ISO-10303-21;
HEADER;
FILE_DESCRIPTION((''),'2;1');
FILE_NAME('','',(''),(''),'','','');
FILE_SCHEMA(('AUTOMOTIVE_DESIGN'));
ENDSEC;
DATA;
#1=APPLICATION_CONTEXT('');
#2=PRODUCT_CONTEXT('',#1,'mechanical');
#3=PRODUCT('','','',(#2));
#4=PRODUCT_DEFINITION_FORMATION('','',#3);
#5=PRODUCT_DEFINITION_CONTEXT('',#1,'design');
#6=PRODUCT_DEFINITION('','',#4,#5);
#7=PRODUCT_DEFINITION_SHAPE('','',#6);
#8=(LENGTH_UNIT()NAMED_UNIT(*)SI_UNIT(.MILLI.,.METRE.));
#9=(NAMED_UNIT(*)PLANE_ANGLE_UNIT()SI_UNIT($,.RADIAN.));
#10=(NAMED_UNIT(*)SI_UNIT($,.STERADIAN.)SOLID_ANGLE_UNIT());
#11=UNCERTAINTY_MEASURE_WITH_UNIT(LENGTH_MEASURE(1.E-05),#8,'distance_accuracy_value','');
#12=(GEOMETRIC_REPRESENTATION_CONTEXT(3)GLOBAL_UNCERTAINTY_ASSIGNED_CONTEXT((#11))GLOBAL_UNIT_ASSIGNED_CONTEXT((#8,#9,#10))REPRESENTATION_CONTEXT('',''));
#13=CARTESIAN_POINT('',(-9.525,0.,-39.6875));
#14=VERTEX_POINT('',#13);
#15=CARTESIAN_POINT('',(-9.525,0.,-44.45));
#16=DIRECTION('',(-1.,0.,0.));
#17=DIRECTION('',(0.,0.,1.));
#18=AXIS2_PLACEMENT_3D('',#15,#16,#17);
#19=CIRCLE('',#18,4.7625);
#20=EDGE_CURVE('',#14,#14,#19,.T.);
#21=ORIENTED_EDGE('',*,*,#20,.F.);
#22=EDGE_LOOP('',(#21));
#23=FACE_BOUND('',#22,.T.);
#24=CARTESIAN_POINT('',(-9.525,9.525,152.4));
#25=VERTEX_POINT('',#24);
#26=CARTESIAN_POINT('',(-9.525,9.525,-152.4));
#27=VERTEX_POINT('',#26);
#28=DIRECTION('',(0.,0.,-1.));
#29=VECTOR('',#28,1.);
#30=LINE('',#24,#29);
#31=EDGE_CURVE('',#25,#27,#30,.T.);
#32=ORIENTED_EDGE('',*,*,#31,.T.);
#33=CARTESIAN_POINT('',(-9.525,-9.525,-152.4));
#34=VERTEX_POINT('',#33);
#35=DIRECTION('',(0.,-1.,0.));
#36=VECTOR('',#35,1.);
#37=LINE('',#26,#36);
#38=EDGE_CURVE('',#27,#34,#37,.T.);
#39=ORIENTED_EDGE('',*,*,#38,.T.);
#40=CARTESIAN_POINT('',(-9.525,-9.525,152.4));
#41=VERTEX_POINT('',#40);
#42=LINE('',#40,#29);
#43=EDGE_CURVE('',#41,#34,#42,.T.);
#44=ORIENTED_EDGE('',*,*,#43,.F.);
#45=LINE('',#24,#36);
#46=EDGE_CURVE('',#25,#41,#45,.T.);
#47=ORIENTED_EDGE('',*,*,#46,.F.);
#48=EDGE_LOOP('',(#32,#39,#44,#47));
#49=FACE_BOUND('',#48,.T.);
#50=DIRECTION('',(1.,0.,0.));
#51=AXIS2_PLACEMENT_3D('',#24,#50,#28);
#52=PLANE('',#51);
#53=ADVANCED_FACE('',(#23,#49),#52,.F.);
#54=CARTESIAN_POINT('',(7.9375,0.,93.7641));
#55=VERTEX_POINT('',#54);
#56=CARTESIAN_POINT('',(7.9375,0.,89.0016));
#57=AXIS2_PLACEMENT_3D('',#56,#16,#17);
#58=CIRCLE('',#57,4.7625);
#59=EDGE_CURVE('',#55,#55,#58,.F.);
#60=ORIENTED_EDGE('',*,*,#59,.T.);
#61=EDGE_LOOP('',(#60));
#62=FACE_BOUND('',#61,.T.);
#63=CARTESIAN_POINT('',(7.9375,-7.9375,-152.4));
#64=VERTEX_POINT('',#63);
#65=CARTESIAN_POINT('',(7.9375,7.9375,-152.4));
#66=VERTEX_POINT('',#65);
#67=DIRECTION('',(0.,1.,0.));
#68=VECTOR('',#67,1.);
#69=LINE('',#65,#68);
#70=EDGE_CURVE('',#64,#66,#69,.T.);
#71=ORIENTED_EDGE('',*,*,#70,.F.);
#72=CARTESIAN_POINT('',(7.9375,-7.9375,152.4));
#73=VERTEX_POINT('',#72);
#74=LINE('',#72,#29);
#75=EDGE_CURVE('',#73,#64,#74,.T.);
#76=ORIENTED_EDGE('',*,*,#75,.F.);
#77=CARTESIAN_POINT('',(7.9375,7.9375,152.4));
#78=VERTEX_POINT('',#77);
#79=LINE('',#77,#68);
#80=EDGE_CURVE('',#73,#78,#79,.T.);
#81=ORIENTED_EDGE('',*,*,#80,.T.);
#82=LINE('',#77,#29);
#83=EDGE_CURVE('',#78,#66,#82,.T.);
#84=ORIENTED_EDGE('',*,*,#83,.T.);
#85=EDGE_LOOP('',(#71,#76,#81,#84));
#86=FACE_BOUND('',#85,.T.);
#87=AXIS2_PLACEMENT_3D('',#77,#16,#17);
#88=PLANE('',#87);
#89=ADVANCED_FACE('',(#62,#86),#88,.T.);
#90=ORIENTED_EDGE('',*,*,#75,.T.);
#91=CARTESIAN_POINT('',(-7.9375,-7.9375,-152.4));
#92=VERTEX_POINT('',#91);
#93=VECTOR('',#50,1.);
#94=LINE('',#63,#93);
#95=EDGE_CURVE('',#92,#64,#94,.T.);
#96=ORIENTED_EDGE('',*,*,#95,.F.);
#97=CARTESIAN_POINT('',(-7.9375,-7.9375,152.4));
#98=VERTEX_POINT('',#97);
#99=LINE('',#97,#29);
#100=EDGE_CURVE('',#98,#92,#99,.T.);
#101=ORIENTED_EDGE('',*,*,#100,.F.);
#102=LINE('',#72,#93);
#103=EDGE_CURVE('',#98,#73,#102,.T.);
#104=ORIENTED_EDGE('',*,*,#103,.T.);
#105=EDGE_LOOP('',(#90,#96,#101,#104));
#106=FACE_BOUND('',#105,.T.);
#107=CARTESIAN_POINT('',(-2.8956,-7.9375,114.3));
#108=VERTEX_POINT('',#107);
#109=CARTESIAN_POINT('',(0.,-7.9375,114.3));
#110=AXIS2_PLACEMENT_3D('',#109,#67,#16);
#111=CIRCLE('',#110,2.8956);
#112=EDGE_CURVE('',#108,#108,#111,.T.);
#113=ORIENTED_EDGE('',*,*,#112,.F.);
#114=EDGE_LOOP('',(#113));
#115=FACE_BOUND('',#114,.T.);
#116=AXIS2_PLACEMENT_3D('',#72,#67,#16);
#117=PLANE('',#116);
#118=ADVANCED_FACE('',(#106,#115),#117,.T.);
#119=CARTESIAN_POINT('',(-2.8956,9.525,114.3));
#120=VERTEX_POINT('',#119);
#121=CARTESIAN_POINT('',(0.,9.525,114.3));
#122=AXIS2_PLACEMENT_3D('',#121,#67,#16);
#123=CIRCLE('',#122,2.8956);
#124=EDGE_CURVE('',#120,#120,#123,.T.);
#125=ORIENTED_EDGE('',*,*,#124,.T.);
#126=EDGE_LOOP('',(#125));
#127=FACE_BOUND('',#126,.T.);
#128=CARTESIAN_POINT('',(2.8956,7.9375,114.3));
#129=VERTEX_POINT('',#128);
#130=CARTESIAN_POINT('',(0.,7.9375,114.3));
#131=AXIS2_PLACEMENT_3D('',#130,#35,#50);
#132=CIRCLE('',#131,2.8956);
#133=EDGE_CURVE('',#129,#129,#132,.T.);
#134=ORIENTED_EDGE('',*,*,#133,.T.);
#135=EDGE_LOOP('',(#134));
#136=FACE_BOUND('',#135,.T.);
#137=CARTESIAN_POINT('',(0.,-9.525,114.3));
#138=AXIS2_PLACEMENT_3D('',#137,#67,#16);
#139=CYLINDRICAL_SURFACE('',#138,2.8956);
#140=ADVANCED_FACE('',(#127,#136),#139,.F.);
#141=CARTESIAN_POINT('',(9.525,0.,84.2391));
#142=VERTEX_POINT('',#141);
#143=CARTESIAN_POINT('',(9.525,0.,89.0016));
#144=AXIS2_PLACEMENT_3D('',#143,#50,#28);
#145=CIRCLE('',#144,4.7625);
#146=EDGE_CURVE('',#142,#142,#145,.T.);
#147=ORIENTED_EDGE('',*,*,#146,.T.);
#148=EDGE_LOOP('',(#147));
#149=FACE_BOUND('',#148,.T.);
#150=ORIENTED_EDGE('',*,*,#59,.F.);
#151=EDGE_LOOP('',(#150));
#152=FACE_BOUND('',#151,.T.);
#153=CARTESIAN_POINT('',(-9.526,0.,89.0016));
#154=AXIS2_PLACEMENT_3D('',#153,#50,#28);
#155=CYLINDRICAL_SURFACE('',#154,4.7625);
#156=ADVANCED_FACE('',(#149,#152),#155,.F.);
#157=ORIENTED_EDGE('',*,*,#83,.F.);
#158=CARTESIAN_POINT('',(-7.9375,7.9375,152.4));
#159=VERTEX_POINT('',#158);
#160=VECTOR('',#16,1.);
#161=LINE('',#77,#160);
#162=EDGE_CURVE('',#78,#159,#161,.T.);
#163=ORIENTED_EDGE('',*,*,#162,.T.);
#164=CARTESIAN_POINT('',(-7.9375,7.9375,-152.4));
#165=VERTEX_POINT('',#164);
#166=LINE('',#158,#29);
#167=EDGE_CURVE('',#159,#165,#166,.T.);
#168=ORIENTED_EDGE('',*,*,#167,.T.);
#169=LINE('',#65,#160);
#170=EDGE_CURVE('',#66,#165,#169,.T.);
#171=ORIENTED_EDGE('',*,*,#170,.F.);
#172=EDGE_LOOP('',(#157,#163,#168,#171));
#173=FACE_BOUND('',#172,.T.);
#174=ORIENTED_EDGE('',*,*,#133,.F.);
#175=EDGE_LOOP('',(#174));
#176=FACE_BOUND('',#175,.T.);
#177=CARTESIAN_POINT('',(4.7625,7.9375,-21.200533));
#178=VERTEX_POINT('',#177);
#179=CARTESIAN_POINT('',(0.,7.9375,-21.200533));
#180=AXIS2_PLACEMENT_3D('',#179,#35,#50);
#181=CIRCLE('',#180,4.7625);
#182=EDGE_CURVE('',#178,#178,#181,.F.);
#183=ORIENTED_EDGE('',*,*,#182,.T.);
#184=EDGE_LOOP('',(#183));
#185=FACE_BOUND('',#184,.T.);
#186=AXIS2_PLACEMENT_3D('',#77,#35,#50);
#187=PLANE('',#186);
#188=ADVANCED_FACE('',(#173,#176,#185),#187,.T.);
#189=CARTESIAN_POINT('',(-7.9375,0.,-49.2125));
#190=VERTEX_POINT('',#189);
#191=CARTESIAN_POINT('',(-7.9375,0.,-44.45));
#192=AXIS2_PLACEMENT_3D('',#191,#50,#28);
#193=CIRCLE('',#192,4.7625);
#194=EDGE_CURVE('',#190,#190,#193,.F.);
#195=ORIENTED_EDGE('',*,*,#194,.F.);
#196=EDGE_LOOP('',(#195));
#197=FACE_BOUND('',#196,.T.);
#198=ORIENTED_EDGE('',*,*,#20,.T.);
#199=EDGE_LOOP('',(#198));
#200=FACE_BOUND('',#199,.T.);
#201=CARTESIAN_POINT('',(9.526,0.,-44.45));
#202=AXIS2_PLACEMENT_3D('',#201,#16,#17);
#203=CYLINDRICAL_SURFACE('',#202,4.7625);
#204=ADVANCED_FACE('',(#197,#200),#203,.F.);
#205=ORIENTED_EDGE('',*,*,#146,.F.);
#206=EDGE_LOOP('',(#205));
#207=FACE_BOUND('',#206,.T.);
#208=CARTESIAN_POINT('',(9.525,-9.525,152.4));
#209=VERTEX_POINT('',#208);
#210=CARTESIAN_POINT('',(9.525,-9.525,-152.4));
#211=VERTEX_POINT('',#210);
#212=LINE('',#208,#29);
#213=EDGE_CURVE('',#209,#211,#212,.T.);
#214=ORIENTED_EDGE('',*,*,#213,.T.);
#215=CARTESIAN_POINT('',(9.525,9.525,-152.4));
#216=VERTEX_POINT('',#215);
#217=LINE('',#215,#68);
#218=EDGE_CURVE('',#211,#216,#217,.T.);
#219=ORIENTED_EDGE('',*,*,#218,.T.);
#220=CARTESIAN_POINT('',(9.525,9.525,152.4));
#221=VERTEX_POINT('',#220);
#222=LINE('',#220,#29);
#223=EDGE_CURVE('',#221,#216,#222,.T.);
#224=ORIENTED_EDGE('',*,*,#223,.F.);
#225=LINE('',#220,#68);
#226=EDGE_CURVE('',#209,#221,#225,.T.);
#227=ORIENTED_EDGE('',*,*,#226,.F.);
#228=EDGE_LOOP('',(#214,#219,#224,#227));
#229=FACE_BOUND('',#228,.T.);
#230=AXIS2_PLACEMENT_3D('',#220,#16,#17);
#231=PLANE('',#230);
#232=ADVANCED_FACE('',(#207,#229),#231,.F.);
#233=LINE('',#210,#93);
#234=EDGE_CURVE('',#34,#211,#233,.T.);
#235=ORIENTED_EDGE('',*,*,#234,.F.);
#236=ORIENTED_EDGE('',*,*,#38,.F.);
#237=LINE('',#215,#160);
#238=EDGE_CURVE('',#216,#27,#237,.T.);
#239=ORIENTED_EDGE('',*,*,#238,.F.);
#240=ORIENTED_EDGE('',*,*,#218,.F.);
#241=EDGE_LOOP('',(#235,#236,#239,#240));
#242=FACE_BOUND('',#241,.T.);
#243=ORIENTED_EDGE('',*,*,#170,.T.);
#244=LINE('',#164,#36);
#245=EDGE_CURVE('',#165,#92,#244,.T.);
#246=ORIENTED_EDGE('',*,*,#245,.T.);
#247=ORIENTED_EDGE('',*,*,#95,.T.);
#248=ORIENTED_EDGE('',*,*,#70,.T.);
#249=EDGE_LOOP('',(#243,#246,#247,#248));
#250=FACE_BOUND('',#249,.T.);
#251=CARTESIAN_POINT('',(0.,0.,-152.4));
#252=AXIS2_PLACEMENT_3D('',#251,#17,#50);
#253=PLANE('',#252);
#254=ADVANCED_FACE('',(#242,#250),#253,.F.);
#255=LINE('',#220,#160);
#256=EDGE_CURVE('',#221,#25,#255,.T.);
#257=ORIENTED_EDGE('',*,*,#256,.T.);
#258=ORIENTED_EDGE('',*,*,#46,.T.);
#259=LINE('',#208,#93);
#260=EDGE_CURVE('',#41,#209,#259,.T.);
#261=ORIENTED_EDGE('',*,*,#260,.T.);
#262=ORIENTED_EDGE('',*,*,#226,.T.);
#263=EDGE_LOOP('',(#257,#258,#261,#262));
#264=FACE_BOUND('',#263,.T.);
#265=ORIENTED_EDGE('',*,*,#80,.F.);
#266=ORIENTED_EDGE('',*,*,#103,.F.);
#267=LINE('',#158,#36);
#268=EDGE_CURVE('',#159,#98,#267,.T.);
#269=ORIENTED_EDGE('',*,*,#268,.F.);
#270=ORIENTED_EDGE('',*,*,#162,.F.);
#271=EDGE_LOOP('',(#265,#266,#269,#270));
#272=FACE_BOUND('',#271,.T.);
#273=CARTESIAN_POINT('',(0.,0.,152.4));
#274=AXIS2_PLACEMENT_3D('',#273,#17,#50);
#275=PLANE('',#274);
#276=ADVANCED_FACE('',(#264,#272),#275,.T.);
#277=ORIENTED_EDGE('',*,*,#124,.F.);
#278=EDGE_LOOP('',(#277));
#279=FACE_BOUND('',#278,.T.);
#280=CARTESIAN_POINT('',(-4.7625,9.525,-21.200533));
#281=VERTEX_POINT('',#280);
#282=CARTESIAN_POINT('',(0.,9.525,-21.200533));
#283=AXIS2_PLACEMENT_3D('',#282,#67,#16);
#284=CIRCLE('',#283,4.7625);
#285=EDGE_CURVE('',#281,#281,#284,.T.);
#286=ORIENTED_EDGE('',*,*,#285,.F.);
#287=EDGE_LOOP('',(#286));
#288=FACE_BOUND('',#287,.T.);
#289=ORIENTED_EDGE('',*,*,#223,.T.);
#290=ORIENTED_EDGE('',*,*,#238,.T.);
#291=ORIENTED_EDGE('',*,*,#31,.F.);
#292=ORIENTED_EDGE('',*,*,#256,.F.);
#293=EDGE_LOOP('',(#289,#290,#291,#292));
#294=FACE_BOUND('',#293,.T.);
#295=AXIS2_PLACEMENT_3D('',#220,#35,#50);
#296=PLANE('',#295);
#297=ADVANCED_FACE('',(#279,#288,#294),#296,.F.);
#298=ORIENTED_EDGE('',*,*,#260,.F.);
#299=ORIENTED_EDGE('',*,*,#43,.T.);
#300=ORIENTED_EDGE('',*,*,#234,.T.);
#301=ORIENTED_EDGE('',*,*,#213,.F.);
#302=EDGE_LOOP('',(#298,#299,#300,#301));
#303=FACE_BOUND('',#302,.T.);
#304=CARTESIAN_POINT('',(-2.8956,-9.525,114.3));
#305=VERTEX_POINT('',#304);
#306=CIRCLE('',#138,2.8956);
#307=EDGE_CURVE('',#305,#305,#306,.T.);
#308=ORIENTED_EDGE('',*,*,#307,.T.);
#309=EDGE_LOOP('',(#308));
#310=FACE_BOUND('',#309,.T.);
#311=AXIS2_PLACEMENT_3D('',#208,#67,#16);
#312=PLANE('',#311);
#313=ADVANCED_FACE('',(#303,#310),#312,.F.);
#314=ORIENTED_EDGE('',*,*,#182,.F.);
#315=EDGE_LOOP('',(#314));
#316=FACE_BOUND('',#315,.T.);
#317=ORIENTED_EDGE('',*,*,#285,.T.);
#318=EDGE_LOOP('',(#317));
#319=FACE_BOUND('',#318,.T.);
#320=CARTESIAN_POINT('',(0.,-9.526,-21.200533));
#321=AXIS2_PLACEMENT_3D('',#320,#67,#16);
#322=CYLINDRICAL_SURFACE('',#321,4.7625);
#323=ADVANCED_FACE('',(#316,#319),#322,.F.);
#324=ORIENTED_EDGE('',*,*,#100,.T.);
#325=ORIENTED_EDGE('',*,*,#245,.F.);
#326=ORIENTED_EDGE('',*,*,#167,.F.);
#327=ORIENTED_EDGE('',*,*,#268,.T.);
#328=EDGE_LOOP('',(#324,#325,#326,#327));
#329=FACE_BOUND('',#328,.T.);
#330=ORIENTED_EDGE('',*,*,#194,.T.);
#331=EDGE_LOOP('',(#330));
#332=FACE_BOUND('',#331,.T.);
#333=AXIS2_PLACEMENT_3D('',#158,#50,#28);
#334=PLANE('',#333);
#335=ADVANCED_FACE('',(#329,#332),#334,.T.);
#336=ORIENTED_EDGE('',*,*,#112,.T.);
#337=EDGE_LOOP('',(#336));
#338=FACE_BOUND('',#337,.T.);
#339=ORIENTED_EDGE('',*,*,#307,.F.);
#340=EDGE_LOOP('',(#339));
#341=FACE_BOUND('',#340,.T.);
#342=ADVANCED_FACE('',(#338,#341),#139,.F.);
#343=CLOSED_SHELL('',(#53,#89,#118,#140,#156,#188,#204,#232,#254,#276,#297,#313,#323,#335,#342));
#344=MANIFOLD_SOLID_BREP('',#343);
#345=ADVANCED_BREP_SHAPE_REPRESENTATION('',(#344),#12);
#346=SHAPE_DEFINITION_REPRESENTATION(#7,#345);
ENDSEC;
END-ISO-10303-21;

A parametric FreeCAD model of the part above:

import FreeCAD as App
import Part
import Sketcher
from FreeCAD import Vector
Q = App.Units.Quantity


def add_polygon(sketch, points):
    """Adds a closed chain of lines whose ends are joined by coincident constraints."""
    first, n = sketch.GeometryCount, len(points)
    for a, b in zip(points, points[1:] + points[:1]):
        sketch.addGeometry(Part.LineSegment(App.Vector(*a, 0), App.Vector(*b, 0)), False)
    for i in range(n):
        sketch.addConstraint(Sketcher.Constraint("Coincident", first + i, 2, first + (i + 1) % n, 1))

doc = App.newDocument("Part")
body = doc.addObject("PartDesign::Body", "Body")

sketch1 = body.newObject("Sketcher::SketchObject", "Sketch")
sketch1.AttachmentSupport = (doc.getObject("XY_Plane"), [""])
sketch1.MapMode = "FlatFace"
add_polygon(sketch1, [(9.525, 9.525), (-9.525, 9.525), (-9.525, -9.525), (9.525, -9.525)])
add_polygon(sketch1, [(-7.9375, -7.9375), (-7.9375, 7.9375), (7.9375, 7.9375), (7.9375, -7.9375)])
sketch1.addConstraint(Sketcher.Constraint("Horizontal", 0))
sketch1.addConstraint(Sketcher.Constraint("Vertical", 1))
sketch1.addConstraint(Sketcher.Constraint("Horizontal", 2))
sketch1.addConstraint(Sketcher.Constraint("Vertical", 3))
sketch1.addConstraint(Sketcher.Constraint("Vertical", 4))
sketch1.addConstraint(Sketcher.Constraint("Horizontal", 5))
sketch1.addConstraint(Sketcher.Constraint("Vertical", 6))
sketch1.addConstraint(Sketcher.Constraint("Horizontal", 7))
sketch1.addConstraint(Sketcher.Constraint("Symmetric", 0, 2, 2, 2, -1, 1))
sketch1.addConstraint(Sketcher.Constraint("Symmetric", 4, 2, 6, 2, -1, 1))
sketch1.addConstraint(Sketcher.Constraint("Equal", 2, 1))
sketch1.addConstraint(Sketcher.Constraint("Equal", 7, 4))
sketch1.addConstraint(Sketcher.Constraint("DistanceX", 0, 2, 0, 1, Q("0.75 in")))
sketch1.addConstraint(Sketcher.Constraint("DistanceX", 5, 1, 5, 2, Q("0.625 in")))
pad1 = body.newObject("PartDesign::Pad", "Pad")
pad1.Profile = sketch1
pad1.Length = Q("12 in")
pad1.Midplane = True

sketch2 = body.newObject("Sketcher::SketchObject", "Sketch001")
sketch2.AttachmentSupport = (doc.getObject("XZ_Plane"), [""])
sketch2.MapMode = "FlatFace"
sketch2.AttachmentOffset = App.Placement(Vector(0, 0, -0.375 * 25.4), App.Rotation())
sketch2.addGeometry(Part.Circle(Vector(0, 114.3, 0), Vector(0, 0, 1), 2.8956), False)
sketch2.addConstraint(Sketcher.Constraint("PointOnObject", 0, 3, -2))
sketch2.addConstraint(Sketcher.Constraint("Diameter", 0, Q("0.228 in")))
sketch2.addConstraint(Sketcher.Constraint("DistanceY", -1, 1, 0, 3, Q("4.5 in")))
pocket1 = body.newObject("PartDesign::Pocket", "Pocket")
pocket1.Profile = sketch2
pocket1.Type = "ThroughAll"
pocket1.Reversed = True

sketch3 = body.newObject("Sketcher::SketchObject", "Sketch002")
sketch3.AttachmentSupport = (doc.getObject("YZ_Plane"), [""])
sketch3.MapMode = "FlatFace"
sketch3.AttachmentOffset = App.Placement(Vector(0, 0, -0.375 * 25.4), App.Rotation())
sketch3.addGeometry(Part.Circle(Vector(0, -44.45, 0), Vector(0, 0, 1), 4.7625), False)
sketch3.addConstraint(Sketcher.Constraint("PointOnObject", 0, 3, -2))
sketch3.addConstraint(Sketcher.Constraint("Diameter", 0, Q("0.375 in")))
sketch3.addConstraint(Sketcher.Constraint("DistanceY", 0, 3, -1, 1, Q("1.75 in")))
pocket2 = body.newObject("PartDesign::Pocket", "Pocket001")
pocket2.Profile = sketch3
pocket2.Type = "UpToFirst"
pocket2.Reversed = True

sketch4 = body.newObject("Sketcher::SketchObject", "Sketch003")
sketch4.AttachmentSupport = (doc.getObject("XZ_Plane"), [""])
sketch4.MapMode = "FlatFace"
sketch4.AttachmentOffset = App.Placement(Vector(0, 0, -0.375 * 25.4), App.Rotation())
sketch4.addGeometry(Part.Circle(Vector(0, -21.200533, 0), Vector(0, 0, 1), 4.7625), False)
sketch4.addConstraint(Sketcher.Constraint("PointOnObject", 0, 3, -2))
sketch4.addConstraint(Sketcher.Constraint("Diameter", 0, Q("0.375 in")))
sketch4.addConstraint(Sketcher.Constraint("DistanceY", 0, 3, -1, 1, 21.200533))
pocket3 = body.newObject("PartDesign::Pocket", "Pocket002")
pocket3.Profile = sketch4
pocket3.Type = "UpToFirst"
pocket3.Reversed = True

sketch5 = body.newObject("Sketcher::SketchObject", "Sketch004")
sketch5.AttachmentSupport = (doc.getObject("YZ_Plane"), [""])
sketch5.MapMode = "FlatFace"
sketch5.AttachmentOffset = App.Placement(Vector(0, 0, 0.375 * 25.4), App.Rotation())
sketch5.addGeometry(Part.Circle(Vector(0, 89.0016, 0), Vector(0, 0, 1), 4.7625), False)
sketch5.addConstraint(Sketcher.Constraint("PointOnObject", 0, 3, -2))
sketch5.addConstraint(Sketcher.Constraint("Diameter", 0, Q("0.375 in")))
sketch5.addConstraint(Sketcher.Constraint("DistanceY", -1, 1, 0, 3, Q("3.504 in")))
pocket4 = body.newObject("PartDesign::Pocket", "Pocket003")
pocket4.Profile = sketch5
pocket4.Type = "UpToFirst"

doc.recompute()
